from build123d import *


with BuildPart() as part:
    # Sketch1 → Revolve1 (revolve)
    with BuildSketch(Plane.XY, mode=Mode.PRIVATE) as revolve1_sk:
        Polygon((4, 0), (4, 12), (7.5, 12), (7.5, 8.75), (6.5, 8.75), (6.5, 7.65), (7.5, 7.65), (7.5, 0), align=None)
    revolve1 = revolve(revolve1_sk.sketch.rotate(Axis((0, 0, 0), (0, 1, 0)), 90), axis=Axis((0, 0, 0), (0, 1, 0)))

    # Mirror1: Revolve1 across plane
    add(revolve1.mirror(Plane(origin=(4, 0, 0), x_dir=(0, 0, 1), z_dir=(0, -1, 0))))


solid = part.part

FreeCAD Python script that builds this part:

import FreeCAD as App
import Part
import Sketcher

V = App.Vector

doc = App.newDocument("Part")
body = doc.addObject("PartDesign::Body", "Body")

# Sketch on XY plane
sketch1 = body.newObject("Sketcher::SketchObject", "Sketch")
sketch1.AttachmentSupport = (doc.getObject("XY_Plane"), [""])
sketch1.MapMode = "FlatFace"
sketch1.addGeometry([
    Part.LineSegment(V(4, 12, 0), V(4, 0, 0)),  # 0
    Part.LineSegment(V(4, 0, 0), V(7.5, 0, 0)),  # 1
    Part.LineSegment(V(7.5, 0, 0), V(7.5, 7.7, 0)),  # 2
    Part.LineSegment(V(7.5, 7.7, 0), V(6.5, 7.7, 0)),  # 3
    Part.LineSegment(V(6.5, 7.7, 0), V(6.5, 8.8, 0)),  # 4
    Part.LineSegment(V(6.5, 8.8, 0), V(7.5, 8.8, 0)),  # 5
    Part.LineSegment(V(7.5, 8.8, 0), V(7.5, 12, 0)),  # 6
    Part.LineSegment(V(7.5, 12, 0), V(4, 12, 0)),  # 7
], False)
sketch1.addConstraint([
    Sketcher.Constraint("Coincident", 0, 2, 1, 1),
    Sketcher.Constraint("Coincident", 1, 2, 2, 1),
    Sketcher.Constraint("Coincident", 2, 2, 3, 1),
    Sketcher.Constraint("Coincident", 3, 2, 4, 1),
    Sketcher.Constraint("Coincident", 4, 2, 5, 1),
    Sketcher.Constraint("Coincident", 5, 2, 6, 1),
    Sketcher.Constraint("Coincident", 6, 2, 7, 1),
    Sketcher.Constraint("Coincident", 7, 2, 0, 1),
    Sketcher.Constraint("Vertical", 0),
    Sketcher.Constraint("Horizontal", 1),
    Sketcher.Constraint("Vertical", 2),
    Sketcher.Constraint("Horizontal", 3),
    Sketcher.Constraint("Vertical", 4),
    Sketcher.Constraint("Horizontal", 5),
    Sketcher.Constraint("Vertical", 6),
    Sketcher.Constraint("Horizontal", 7),
    Sketcher.Constraint("PointOnObject", 0, 2, -1),
    Sketcher.Constraint("Vertical", 2, 2, 5, 2),
    Sketcher.Constraint("DistanceX", 3, 2, 3, 1, 1.0),
    Sketcher.Constraint("DistanceY", 0, 2, 0, 1, 12.0),
    Sketcher.Constraint("DistanceX", 1, 1, 1, 2, 3.5),
    Sketcher.Constraint("DistanceY", 4, 1, 4, 2, 1.1),
    Sketcher.Constraint("DistanceX", -1, 1, 0, 2, 4.0),
    Sketcher.Constraint("DistanceY", 2, 1, 2, 2, 7.65),
])
revolution = body.newObject("PartDesign::Revolution", "Revolution")
revolution.Profile = sketch1
revolution.ReferenceAxis = (sketch1, ["V_Axis"])
revolution.Angle = 360
doc.recompute()

mirrored = body.newObject("PartDesign::Mirrored", "Mirrored")
mirrored.Originals = [revolution]
mirrored.MirrorPlane = (doc.getObject("XZ_Plane"), [""])
body.Tip = mirrored

doc.recompute()
